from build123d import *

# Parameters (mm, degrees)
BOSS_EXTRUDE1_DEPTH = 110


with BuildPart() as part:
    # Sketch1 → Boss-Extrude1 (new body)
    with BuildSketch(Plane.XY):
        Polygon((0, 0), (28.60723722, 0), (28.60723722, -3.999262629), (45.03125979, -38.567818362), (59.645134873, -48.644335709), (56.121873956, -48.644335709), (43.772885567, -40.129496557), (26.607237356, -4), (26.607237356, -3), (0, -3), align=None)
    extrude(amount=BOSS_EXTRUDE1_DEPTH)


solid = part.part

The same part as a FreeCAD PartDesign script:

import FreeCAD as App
import Part
import Sketcher
from FreeCAD import Vector
Q = App.Units.Quantity

doc = App.newDocument("Part")
body = doc.addObject("PartDesign::Body", "Body")

# Sketch on XY plane
sketch1 = doc.addObject("Sketcher::SketchObject", "Sketch")
body.addObject(sketch1)
sketch1.AttachmentSupport = (doc.XY_Plane, [""])
sketch1.MapMode = "FlatFace"
sketch1.addGeometry(Part.LineSegment(Vector(28.607237, 0, 0), Vector(0, 0, 0)), False)
sketch1.addGeometry(Part.LineSegment(Vector(0, 0, 0), Vector(0, -3, 0)), False)
sketch1.addGeometry(Part.LineSegment(Vector(0, -3, 0), Vector(26.607237, -3, 0)), False)
sketch1.addGeometry(Part.LineSegment(Vector(26.607237, -3, 0), Vector(26.607237, -4, 0)), False)
sketch1.addGeometry(Part.LineSegment(Vector(26.607237, -4, 0), Vector(43.772886, -40.129497, 0)), False)
sketch1.addGeometry(Part.LineSegment(Vector(43.772886, -40.129497, 0), Vector(56.121874, -48.644336, 0)), False)
sketch1.addGeometry(Part.LineSegment(Vector(56.121874, -48.644336, 0), Vector(59.645135, -48.644336, 0)), False)
sketch1.addGeometry(Part.LineSegment(Vector(59.645135, -48.644336, 0), Vector(45.03126, -38.567818, 0)), False)
sketch1.addGeometry(Part.LineSegment(Vector(45.03126, -38.567818, 0), Vector(28.607237, -3.999263, 0)), False)
sketch1.addGeometry(Part.LineSegment(Vector(28.607237, -3.999263, 0), Vector(28.607237, 0, 0)), False)
sketch1.addConstraint(Sketcher.Constraint("Coincident", 0, 2, 1, 1))
sketch1.addConstraint(Sketcher.Constraint("Coincident", 1, 2, 2, 1))
sketch1.addConstraint(Sketcher.Constraint("Coincident", 2, 2, 3, 1))
sketch1.addConstraint(Sketcher.Constraint("Coincident", 3, 2, 4, 1))
sketch1.addConstraint(Sketcher.Constraint("Coincident", 4, 2, 5, 1))
sketch1.addConstraint(Sketcher.Constraint("Coincident", 5, 2, 6, 1))
sketch1.addConstraint(Sketcher.Constraint("Coincident", 6, 2, 7, 1))
sketch1.addConstraint(Sketcher.Constraint("Coincident", 7, 2, 8, 1))
sketch1.addConstraint(Sketcher.Constraint("Coincident", 8, 2, 9, 1))
sketch1.addConstraint(Sketcher.Constraint("Coincident", 9, 2, 0, 1))
sketch1.addConstraint(Sketcher.Constraint("Horizontal", 0))
sketch1.addConstraint(Sketcher.Constraint("Vertical", 1))
sketch1.addConstraint(Sketcher.Constraint("Horizontal", 2))
sketch1.addConstraint(Sketcher.Constraint("Vertical", 3))
sketch1.addConstraint(Sketcher.Constraint("Horizontal", 6))
sketch1.addConstraint(Sketcher.Constraint("Vertical", 9))
sketch1.addConstraint(Sketcher.Constraint("Coincident", 0, 2, -1, 1))
sketch1.addConstraint(Sketcher.Constraint("Parallel", 5, 7))
sketch1.addConstraint(Sketcher.Constraint("Parallel", 4, 8))
sketch1.addConstraint(Sketcher.Constraint("DistanceY", 1, 2, 1, 1, Q("3 mm")))
sketch1.addConstraint(Sketcher.Constraint("DistanceY", 3, 2, 3, 1, Q("1 mm")))
sketch1.addConstraint(Sketcher.Constraint("Distance", 4, Q("40 mm")))
sketch1.addConstraint(Sketcher.Constraint("Distance", 5, Q("15 mm")))
sketch1.addConstraint(Sketcher.Constraint("DistanceX", 3, 2, 8, 2, Q("2 mm")))
sketch1.addConstraint(Sketcher.Constraint("Distance", 7, Q("17.7511 mm")))
sketch1.addConstraint(Sketcher.Constraint("DistanceX", 6, 1, 6, 2, Q("3.523261 mm")))
sketch1.addConstraint(Sketcher.Constraint("DistanceX", 0, 2, 0, 1, Q("28.607237 mm")))
sketch1.addConstraint(Sketcher.Constraint("DistanceY", 9, 1, 9, 2, Q("3.999263 mm")))
sketch1.addConstraint(Sketcher.Constraint("DistanceX", -1, 1, 7, 2, Q("45.03126 mm")))
pad1 = doc.addObject("PartDesign::Pad", "Pad")
body.addObject(pad1)
pad1.Profile = sketch1
pad1.Length = 110

doc.recompute()
